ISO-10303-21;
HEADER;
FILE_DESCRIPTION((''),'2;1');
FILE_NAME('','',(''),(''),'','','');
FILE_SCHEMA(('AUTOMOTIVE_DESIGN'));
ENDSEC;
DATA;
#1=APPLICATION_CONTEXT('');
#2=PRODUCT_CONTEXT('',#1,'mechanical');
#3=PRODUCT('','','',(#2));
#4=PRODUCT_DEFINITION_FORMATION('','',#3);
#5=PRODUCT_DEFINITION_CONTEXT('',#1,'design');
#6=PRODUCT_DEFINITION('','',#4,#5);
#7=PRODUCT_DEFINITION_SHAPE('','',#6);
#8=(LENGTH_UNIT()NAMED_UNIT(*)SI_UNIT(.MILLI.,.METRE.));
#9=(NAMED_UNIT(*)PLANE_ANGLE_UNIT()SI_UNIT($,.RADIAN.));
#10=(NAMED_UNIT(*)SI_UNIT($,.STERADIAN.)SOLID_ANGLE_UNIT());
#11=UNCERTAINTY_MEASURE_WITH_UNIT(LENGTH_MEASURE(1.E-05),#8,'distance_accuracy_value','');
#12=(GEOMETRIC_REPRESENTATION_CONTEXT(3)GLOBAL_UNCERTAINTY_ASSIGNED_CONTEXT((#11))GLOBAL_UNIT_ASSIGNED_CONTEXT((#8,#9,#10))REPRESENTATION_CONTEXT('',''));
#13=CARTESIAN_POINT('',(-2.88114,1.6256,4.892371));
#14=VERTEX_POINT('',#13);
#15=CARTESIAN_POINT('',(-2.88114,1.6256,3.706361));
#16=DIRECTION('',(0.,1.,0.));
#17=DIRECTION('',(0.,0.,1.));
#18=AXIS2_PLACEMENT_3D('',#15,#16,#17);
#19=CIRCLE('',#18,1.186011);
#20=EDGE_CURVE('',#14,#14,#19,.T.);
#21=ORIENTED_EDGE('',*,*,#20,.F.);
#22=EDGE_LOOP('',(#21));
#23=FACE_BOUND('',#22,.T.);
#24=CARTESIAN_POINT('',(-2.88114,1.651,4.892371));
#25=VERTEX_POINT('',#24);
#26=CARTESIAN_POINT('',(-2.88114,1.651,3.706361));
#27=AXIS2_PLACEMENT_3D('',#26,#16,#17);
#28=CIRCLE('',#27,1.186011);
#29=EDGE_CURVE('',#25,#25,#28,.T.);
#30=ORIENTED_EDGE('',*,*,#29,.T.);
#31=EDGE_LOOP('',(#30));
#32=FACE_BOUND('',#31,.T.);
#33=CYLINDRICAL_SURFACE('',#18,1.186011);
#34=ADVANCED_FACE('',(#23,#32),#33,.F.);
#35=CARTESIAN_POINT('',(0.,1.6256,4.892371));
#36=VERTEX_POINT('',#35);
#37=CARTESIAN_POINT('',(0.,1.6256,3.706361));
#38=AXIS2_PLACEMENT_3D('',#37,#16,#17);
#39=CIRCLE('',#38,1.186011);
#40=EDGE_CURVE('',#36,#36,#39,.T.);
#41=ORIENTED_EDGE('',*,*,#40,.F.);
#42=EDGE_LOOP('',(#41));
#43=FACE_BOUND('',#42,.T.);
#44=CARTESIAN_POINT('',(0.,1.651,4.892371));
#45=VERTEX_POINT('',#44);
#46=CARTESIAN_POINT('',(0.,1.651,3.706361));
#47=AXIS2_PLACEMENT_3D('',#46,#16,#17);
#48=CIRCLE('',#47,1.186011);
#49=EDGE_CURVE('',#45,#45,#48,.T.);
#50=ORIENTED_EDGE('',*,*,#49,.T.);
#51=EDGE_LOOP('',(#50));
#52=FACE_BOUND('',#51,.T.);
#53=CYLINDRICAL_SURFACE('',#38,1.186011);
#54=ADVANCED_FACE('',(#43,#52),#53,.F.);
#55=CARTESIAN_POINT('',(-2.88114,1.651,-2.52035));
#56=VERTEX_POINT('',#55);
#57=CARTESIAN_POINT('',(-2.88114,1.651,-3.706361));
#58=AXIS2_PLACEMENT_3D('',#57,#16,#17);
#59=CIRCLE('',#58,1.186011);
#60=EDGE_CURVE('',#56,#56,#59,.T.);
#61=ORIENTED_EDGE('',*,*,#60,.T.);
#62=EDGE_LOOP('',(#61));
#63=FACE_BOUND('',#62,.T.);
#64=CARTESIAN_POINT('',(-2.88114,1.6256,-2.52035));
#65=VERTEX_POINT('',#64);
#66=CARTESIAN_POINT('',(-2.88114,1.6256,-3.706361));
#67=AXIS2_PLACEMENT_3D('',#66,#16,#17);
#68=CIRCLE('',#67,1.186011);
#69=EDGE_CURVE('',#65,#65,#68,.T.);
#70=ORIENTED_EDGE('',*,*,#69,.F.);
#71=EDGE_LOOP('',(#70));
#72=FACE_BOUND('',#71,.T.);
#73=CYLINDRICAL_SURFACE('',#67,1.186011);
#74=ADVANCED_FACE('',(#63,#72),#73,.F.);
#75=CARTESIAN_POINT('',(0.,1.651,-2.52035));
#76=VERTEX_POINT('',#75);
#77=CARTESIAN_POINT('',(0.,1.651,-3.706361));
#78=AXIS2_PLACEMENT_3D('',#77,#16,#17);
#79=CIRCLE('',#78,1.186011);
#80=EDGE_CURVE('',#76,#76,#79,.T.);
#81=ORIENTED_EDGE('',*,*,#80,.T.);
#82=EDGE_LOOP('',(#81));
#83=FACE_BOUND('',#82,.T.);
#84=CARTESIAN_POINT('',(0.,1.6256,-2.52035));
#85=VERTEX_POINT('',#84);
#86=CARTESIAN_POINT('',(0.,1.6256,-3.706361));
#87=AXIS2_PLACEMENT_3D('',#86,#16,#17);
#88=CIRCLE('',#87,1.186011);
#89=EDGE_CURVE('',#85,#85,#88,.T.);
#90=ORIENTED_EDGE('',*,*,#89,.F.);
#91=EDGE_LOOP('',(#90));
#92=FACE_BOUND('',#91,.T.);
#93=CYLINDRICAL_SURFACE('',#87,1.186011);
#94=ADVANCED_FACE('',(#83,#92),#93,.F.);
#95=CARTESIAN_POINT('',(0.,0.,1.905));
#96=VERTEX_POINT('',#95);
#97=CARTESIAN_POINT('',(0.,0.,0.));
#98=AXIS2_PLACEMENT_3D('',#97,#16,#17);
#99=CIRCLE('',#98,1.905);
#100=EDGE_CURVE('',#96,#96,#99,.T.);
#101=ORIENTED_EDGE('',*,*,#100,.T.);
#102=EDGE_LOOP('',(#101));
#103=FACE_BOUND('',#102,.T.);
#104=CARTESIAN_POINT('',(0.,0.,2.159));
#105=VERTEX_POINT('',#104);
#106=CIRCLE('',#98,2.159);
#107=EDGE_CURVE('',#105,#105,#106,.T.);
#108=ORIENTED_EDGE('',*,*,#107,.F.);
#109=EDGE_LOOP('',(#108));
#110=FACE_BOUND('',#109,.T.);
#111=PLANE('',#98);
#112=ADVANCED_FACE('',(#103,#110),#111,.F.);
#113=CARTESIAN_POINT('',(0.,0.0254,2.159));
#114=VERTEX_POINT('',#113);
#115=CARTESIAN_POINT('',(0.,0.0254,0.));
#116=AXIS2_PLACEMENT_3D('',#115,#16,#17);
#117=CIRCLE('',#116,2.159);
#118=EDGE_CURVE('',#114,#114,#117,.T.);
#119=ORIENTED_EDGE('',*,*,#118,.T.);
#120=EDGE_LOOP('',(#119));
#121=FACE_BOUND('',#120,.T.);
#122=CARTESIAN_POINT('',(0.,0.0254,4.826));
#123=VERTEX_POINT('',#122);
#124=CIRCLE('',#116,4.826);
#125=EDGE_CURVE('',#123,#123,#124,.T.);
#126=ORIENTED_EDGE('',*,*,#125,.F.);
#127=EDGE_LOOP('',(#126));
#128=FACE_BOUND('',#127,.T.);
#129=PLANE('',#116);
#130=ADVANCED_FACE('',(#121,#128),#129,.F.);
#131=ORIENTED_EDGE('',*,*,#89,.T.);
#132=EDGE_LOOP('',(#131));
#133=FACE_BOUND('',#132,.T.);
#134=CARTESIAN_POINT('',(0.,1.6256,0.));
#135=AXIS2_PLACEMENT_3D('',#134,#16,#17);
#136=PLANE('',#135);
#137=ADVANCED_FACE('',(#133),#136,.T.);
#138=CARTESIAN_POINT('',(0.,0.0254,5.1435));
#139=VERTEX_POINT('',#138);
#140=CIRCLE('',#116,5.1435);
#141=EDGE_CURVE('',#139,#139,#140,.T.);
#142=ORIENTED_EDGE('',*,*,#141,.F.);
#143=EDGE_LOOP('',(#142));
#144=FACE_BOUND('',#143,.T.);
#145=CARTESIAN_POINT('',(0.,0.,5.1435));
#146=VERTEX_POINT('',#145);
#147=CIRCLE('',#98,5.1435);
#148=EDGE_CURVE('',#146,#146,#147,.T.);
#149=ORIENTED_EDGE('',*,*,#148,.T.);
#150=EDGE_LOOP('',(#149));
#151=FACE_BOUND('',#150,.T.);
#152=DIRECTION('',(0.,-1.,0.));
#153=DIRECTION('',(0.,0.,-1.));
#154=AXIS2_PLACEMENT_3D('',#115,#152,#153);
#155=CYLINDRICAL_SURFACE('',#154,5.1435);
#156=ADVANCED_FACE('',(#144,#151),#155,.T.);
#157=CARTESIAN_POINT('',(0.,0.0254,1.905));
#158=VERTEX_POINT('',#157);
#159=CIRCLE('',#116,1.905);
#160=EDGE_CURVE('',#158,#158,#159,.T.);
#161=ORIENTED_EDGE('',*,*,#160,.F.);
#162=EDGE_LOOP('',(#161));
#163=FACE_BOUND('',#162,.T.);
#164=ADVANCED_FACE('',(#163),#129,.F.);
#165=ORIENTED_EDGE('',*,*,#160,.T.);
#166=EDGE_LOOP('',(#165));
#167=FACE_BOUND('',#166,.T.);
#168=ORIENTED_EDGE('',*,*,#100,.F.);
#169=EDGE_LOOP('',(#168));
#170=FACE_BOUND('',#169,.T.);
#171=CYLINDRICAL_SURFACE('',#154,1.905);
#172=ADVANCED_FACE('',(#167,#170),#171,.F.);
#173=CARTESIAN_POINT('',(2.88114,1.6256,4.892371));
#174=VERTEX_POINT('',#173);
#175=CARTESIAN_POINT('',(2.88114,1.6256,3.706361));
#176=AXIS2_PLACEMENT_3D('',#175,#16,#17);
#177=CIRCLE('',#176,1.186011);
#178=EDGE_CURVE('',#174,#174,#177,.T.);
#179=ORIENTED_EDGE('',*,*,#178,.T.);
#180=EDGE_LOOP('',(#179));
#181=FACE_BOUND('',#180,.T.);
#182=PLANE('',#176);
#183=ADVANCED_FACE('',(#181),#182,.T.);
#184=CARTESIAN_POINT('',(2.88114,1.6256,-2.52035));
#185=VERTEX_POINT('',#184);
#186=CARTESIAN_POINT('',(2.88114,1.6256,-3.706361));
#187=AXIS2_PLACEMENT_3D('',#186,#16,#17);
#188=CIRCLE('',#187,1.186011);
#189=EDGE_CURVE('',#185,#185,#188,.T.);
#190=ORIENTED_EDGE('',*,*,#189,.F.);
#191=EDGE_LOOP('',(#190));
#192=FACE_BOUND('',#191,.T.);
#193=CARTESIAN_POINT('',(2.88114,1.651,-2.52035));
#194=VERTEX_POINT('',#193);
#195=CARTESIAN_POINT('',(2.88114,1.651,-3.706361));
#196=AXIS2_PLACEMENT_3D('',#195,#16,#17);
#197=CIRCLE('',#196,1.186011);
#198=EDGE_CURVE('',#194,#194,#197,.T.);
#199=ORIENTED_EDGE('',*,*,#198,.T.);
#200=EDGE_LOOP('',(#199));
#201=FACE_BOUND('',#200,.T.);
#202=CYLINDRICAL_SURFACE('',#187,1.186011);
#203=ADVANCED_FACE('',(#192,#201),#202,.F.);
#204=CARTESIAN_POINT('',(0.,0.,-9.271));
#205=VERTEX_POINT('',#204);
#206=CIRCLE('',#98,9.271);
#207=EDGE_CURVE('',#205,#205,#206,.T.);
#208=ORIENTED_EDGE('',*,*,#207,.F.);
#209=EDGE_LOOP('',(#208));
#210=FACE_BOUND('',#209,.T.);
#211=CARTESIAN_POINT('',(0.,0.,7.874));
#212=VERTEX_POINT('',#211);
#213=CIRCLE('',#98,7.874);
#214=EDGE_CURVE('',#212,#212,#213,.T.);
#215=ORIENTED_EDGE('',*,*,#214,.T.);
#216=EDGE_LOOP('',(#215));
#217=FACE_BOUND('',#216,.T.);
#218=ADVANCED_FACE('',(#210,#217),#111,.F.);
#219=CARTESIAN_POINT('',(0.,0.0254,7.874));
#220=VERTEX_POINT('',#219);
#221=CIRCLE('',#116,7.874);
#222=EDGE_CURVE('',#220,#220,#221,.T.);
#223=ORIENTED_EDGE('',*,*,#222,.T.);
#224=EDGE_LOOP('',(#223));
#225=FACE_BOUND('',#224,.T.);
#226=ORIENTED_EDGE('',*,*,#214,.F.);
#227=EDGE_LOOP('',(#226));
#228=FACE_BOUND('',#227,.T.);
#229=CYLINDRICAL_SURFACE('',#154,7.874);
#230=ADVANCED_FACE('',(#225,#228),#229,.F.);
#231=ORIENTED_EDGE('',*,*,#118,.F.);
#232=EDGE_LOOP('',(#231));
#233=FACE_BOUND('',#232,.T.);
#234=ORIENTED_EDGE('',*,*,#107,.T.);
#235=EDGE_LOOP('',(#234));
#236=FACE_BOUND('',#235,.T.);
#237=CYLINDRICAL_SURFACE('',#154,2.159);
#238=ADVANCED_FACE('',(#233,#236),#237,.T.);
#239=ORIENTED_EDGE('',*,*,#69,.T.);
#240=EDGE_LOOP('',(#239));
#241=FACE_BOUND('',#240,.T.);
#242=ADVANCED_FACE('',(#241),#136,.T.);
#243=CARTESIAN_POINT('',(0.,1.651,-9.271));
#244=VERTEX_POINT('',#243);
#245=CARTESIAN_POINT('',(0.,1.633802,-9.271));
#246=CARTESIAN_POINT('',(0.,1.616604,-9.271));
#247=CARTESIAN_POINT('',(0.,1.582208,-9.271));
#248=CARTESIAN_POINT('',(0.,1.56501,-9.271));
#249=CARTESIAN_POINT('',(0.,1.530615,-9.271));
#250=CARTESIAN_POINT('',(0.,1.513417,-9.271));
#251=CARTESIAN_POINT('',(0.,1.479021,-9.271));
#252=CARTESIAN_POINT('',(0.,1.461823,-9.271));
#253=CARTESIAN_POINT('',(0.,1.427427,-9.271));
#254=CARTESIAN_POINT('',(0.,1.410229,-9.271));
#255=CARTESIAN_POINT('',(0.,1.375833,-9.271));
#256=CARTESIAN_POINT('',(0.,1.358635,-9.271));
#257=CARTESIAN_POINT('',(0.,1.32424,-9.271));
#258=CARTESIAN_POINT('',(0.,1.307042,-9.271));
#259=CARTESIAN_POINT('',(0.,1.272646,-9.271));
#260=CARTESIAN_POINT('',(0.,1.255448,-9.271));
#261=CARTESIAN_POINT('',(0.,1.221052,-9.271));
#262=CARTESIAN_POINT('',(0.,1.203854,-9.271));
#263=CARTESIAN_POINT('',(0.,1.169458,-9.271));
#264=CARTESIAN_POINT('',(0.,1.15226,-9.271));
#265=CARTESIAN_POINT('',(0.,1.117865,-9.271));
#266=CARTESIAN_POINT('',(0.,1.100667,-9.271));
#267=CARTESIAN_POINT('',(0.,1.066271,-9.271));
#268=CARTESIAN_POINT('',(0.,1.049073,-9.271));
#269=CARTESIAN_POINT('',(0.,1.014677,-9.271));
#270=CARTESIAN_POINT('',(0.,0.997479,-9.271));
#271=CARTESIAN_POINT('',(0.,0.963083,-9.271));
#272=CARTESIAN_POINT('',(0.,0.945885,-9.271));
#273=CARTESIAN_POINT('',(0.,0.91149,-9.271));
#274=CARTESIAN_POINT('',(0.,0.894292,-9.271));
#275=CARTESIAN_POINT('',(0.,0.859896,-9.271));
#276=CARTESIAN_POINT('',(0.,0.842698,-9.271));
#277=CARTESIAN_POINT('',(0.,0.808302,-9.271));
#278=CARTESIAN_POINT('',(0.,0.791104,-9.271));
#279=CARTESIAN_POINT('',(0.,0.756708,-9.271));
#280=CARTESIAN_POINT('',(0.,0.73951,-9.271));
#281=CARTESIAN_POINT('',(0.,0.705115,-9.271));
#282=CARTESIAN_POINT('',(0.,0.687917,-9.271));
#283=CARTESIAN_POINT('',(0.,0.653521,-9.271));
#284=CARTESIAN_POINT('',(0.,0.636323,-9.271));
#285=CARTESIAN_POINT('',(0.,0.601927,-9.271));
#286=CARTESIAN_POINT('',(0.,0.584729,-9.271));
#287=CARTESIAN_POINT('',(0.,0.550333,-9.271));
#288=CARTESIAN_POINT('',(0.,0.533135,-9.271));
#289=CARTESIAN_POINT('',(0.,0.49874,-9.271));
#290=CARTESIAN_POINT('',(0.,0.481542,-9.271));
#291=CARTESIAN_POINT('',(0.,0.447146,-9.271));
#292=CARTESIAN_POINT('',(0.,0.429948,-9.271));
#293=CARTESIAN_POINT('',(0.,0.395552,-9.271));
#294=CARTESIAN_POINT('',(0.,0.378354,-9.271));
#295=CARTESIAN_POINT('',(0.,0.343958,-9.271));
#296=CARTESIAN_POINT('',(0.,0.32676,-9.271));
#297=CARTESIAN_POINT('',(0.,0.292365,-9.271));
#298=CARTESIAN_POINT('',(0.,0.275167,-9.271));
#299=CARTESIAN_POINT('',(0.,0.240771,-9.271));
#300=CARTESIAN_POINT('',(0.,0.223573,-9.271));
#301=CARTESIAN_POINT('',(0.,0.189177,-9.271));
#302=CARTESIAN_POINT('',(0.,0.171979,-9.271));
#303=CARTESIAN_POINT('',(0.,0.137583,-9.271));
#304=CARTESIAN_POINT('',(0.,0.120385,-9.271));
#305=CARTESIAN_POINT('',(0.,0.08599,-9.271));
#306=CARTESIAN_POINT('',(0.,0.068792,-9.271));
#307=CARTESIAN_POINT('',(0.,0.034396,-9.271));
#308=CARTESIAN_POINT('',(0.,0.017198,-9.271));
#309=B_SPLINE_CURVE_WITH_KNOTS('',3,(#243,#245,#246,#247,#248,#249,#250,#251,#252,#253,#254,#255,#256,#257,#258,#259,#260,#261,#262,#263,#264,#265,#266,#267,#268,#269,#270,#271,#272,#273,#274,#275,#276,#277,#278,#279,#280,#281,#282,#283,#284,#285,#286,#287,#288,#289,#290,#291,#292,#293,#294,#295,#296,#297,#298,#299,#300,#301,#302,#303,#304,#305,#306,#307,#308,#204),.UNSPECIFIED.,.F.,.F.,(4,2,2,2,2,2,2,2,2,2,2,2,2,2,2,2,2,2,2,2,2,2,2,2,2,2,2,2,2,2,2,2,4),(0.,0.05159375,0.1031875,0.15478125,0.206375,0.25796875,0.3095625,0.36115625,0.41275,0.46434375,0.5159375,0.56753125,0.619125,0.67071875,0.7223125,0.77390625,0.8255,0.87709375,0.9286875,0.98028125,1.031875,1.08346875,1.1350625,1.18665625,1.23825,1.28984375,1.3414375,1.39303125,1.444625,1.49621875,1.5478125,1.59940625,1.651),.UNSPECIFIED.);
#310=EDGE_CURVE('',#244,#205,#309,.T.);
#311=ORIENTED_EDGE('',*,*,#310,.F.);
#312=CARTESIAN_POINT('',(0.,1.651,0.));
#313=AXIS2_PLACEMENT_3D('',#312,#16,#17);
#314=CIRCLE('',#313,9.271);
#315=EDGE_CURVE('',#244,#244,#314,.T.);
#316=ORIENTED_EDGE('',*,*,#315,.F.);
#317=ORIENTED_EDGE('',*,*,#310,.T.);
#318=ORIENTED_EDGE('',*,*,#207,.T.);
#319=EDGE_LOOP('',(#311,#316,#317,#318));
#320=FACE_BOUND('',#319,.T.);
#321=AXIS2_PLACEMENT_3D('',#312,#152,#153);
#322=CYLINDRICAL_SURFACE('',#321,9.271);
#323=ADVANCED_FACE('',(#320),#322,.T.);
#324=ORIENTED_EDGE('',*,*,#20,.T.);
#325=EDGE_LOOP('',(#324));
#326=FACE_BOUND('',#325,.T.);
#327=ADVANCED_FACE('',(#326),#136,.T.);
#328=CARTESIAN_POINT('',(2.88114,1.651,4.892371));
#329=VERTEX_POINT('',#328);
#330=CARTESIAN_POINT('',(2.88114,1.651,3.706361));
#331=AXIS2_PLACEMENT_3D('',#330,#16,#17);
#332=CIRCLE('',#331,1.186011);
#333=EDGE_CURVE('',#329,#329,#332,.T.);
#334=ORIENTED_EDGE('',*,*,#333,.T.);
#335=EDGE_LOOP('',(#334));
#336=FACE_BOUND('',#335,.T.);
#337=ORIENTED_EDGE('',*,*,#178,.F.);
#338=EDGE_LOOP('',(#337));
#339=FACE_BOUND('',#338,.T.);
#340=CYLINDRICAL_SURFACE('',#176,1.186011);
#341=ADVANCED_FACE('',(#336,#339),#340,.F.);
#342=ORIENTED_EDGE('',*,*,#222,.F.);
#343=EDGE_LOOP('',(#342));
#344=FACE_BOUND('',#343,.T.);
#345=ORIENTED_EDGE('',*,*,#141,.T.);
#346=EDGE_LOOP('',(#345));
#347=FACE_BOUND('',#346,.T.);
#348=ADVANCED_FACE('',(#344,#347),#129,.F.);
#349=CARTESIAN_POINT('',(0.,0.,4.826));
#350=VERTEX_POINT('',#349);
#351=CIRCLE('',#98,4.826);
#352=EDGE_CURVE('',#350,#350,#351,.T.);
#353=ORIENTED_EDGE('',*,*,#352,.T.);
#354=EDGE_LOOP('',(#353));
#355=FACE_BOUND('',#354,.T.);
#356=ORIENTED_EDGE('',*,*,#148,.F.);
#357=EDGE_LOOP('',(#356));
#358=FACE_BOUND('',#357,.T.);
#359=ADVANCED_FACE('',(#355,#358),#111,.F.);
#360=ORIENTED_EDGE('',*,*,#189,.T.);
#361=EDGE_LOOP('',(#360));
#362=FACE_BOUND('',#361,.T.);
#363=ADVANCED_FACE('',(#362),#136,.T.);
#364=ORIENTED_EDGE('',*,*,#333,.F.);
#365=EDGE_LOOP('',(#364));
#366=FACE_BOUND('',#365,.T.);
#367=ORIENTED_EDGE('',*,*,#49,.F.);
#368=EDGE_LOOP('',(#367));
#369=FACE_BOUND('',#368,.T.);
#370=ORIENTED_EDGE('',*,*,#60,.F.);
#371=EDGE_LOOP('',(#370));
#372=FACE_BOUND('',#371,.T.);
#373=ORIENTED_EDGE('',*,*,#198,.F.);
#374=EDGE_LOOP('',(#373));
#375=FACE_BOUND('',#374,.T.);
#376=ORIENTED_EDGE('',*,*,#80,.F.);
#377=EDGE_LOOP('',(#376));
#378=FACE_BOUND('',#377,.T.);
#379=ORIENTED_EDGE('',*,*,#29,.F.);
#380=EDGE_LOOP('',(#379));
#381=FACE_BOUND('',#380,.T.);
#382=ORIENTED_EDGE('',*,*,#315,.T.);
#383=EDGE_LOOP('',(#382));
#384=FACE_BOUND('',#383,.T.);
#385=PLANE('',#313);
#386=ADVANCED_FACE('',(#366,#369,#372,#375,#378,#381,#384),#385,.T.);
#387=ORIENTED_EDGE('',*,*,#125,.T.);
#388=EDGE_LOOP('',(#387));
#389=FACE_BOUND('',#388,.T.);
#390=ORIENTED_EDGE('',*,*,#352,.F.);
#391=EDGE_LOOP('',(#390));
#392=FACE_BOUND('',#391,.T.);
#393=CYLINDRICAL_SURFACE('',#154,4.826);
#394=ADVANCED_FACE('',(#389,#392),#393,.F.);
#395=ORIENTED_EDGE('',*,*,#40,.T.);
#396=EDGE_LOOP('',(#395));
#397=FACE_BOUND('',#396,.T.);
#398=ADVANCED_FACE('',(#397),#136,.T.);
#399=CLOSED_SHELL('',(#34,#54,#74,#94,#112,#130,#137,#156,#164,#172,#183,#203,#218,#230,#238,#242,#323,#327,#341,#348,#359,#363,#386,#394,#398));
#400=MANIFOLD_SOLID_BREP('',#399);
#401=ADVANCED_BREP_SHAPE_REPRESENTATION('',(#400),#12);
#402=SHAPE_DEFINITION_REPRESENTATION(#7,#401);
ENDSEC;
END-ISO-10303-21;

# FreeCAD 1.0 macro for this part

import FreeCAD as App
import Part
import Sketcher
from FreeCAD import Vector
Q = App.Units.Quantity

doc = App.newDocument("Part")
body = doc.addObject("PartDesign::Body", "Body")

# Sketch on XZ plane
sketch1 = body.newObject("Sketcher::SketchObject", "Sketch")
sketch1.AttachmentSupport = (doc.getObject("XZ_Plane"), [""])
sketch1.MapMode = "FlatFace"
sketch1.addGeometry(Part.Circle(Vector(0, 0, 0), Vector(0, 0, 1), 9.271), False)
sketch1.addConstraint(Sketcher.Constraint("Coincident", 0, 3, -1, 1))
sketch1.addConstraint(Sketcher.Constraint("Diameter", 0, Q("0.73 in")))
pad1 = body.newObject("PartDesign::Pad", "Pad")
pad1.Profile = sketch1
pad1.Length = Q("0.065 in")
pad1.Reversed = True

# Sketch on XZ plane
sketch2 = body.newObject("Sketcher::SketchObject", "Sketch001")
sketch2.AttachmentSupport = (doc.getObject("XZ_Plane"), [""])
sketch2.MapMode = "FlatFace"
sketch2.addGeometry(Part.Circle(Vector(0, 0, 0), Vector(0, 0, 1), 7.874), False)
sketch2.addGeometry(Part.Circle(Vector(0, 0, 0), Vector(0, 0, 1), 5.1435), False)
sketch2.addGeometry(Part.Circle(Vector(0, 0, 0), Vector(0, 0, 1), 4.826), False)
sketch2.addGeometry(Part.Circle(Vector(0, 0, 0), Vector(0, 0, 1), 2.159), False)
sketch2.addGeometry(Part.Circle(Vector(0, 0, 0), Vector(0, 0, 1), 1.905), False)
sketch2.addConstraint(Sketcher.Constraint("Coincident", 0, 3, -1, 1))
sketch2.addConstraint(Sketcher.Constraint("Coincident", 1, 3, -1, 1))
sketch2.addConstraint(Sketcher.Constraint("Coincident", 2, 3, -1, 1))
sketch2.addConstraint(Sketcher.Constraint("Coincident", 3, 3, -1, 1))
sketch2.addConstraint(Sketcher.Constraint("Coincident", 4, 3, -1, 1))
sketch2.addConstraint(Sketcher.Constraint("Diameter", 0, Q("0.62 in")))
sketch2.addConstraint(Sketcher.Constraint("Diameter", 2, Q("0.38 in")))
sketch2.addConstraint(Sketcher.Constraint("Diameter", 3, Q("0.17 in")))
sketch2.addConstraint(Sketcher.Constraint("Diameter", 4, Q("0.15 in")))
sketch2.addConstraint(Sketcher.Constraint("Diameter", 1, Q("0.405 in")))
pocket1 = body.newObject("PartDesign::Pocket", "Pocket")
pocket1.Profile = sketch2
pocket1.Length = Q("0.001 in")

# Sketch on XZ plane
sketch3 = body.newObject("Sketcher::SketchObject", "Sketch002")
sketch3.AttachmentSupport = (doc.getObject("XZ_Plane"), [""])
sketch3.MapMode = "FlatFace"
sketch3.AttachmentOffset = App.Placement(Vector(0, 0, -0.065 * 25.4), App.Rotation())
sketch3.addGeometry(Part.Circle(Vector(-2.88114, -3.706361, 0), Vector(0, 0, 1), 1.186011), False)
sketch3.addGeometry(Part.Circle(Vector(0, -3.706361, 0), Vector(0, 0, 1), 1.186011), False)
sketch3.addGeometry(Part.Circle(Vector(2.88114, -3.706361, 0), Vector(0, 0, 1), 1.186011), False)
sketch3.addGeometry(Part.Circle(Vector(0, 3.706361, 0), Vector(0, 0, 1), 1.186011), False)
sketch3.addGeometry(Part.Circle(Vector(-2.88114, 3.706361, 0), Vector(0, 0, 1), 1.186011), False)
sketch3.addGeometry(Part.Circle(Vector(2.88114, 3.706361, 0), Vector(0, 0, 1), 1.186011), False)
sketch3.addConstraint(Sketcher.Constraint("Equal", 0, 1))
sketch3.addConstraint(Sketcher.Constraint("Equal", 1, 2))
sketch3.addConstraint(Sketcher.Constraint("Equal", 2, 3))
sketch3.addConstraint(Sketcher.Constraint("Equal", 3, 4))
sketch3.addConstraint(Sketcher.Constraint("Equal", 4, 5))
sketch3.addConstraint(Sketcher.Constraint("Symmetric", 1, 3, 3, 3, -1, 1))
sketch3.addConstraint(Sketcher.Constraint("Symmetric", 2, 3, 4, 3, -1, 1))
sketch3.addConstraint(Sketcher.Constraint("Symmetric", 0, 3, 5, 3, -1, 1))
sketch3.addConstraint(Sketcher.Constraint("Symmetric", 0, 3, 2, 3, -2))
sketch3.addConstraint(Sketcher.Constraint("PointOnObject", 1, 3, -2))
sketch3.addConstraint(Sketcher.Constraint("Horizontal", 0, 3, 1, 3))
sketch3.addConstraint(Sketcher.Constraint("Diameter", 0, 2.372021))
sketch3.addConstraint(Sketcher.Constraint("DistanceX", 0, 3, -1, 1, 2.88114))
sketch3.addConstraint(Sketcher.Constraint("DistanceY", 0, 3, -1, 1, 3.706361))
pocket2 = body.newObject("PartDesign::Pocket", "Pocket001")
pocket2.Profile = sketch3
pocket2.Length = Q("0.001 in")
pocket2.Reversed = True

doc.recompute()
